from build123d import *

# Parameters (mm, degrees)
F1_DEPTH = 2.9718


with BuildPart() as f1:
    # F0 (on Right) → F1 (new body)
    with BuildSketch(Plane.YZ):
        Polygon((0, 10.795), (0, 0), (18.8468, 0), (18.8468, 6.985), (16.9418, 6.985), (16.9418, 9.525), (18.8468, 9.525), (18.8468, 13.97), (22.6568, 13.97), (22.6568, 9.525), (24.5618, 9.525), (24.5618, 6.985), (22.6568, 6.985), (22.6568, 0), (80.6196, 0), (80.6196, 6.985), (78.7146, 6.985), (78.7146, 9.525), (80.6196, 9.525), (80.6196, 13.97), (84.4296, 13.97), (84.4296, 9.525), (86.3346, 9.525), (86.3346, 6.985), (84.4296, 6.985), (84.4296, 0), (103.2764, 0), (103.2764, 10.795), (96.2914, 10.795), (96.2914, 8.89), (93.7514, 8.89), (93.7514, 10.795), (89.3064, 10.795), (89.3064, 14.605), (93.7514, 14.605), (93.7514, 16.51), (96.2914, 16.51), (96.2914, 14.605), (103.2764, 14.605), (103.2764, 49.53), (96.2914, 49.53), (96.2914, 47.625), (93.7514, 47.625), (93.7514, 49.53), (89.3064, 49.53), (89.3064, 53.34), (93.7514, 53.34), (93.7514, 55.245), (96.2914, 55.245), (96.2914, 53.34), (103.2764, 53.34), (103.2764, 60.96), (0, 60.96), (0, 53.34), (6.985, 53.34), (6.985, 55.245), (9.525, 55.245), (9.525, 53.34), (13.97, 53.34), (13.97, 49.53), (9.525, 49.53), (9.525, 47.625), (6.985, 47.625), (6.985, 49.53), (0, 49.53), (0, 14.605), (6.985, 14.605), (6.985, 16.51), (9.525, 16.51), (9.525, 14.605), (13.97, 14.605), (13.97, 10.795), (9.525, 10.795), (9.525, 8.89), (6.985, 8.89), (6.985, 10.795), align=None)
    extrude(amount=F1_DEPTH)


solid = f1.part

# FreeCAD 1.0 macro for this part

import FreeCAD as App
import Part
import Sketcher
Q = App.Units.Quantity

doc = App.newDocument("Part")
body = doc.addObject("PartDesign::Body", "Body")

# Sketch on YZ plane
sketch1 = body.newObject("Sketcher::SketchObject", "Sketch")
sketch1.AttachmentSupport = (doc.getObject("YZ_Plane"), [""])
sketch1.MapMode = "FlatFace"
sketch1.addGeometry(Part.LineSegment(App.Vector(0, 10.795, 0), App.Vector(0, 0, 0)), False)
sketch1.addGeometry(Part.LineSegment(App.Vector(0, 0, 0), App.Vector(18.8468, 0, 0)), False)
sketch1.addGeometry(Part.LineSegment(App.Vector(18.8468, 0, 0), App.Vector(18.8468, 6.985, 0)), False)
sketch1.addGeometry(Part.LineSegment(App.Vector(18.8468, 6.985, 0), App.Vector(16.9418, 6.985, 0)), False)
sketch1.addGeometry(Part.LineSegment(App.Vector(16.9418, 6.985, 0), App.Vector(16.9418, 9.525, 0)), False)
sketch1.addGeometry(Part.LineSegment(App.Vector(16.9418, 9.525, 0), App.Vector(18.8468, 9.525, 0)), False)
sketch1.addGeometry(Part.LineSegment(App.Vector(18.8468, 9.525, 0), App.Vector(18.8468, 13.97, 0)), False)
sketch1.addGeometry(Part.LineSegment(App.Vector(18.8468, 13.97, 0), App.Vector(22.6568, 13.97, 0)), False)
sketch1.addGeometry(Part.LineSegment(App.Vector(22.6568, 13.97, 0), App.Vector(22.6568, 9.525, 0)), False)
sketch1.addGeometry(Part.LineSegment(App.Vector(22.6568, 9.525, 0), App.Vector(24.5618, 9.525, 0)), False)
sketch1.addGeometry(Part.LineSegment(App.Vector(24.5618, 9.525, 0), App.Vector(24.5618, 6.985, 0)), False)
sketch1.addGeometry(Part.LineSegment(App.Vector(24.5618, 6.985, 0), App.Vector(22.6568, 6.985, 0)), False)
sketch1.addGeometry(Part.LineSegment(App.Vector(22.6568, 6.985, 0), App.Vector(22.6568, 0, 0)), False)
sketch1.addGeometry(Part.LineSegment(App.Vector(22.6568, 0, 0), App.Vector(80.6196, 0, 0)), False)
sketch1.addGeometry(Part.LineSegment(App.Vector(80.6196, 0, 0), App.Vector(80.6196, 6.985, 0)), False)
sketch1.addGeometry(Part.LineSegment(App.Vector(80.6196, 6.985, 0), App.Vector(78.7146, 6.985, 0)), False)
sketch1.addGeometry(Part.LineSegment(App.Vector(78.7146, 6.985, 0), App.Vector(78.7146, 9.525, 0)), False)
sketch1.addGeometry(Part.LineSegment(App.Vector(78.7146, 9.525, 0), App.Vector(80.6196, 9.525, 0)), False)
sketch1.addGeometry(Part.LineSegment(App.Vector(80.6196, 9.525, 0), App.Vector(80.6196, 13.97, 0)), False)
sketch1.addGeometry(Part.LineSegment(App.Vector(80.6196, 13.97, 0), App.Vector(84.4296, 13.97, 0)), False)
sketch1.addGeometry(Part.LineSegment(App.Vector(84.4296, 13.97, 0), App.Vector(84.4296, 9.525, 0)), False)
sketch1.addGeometry(Part.LineSegment(App.Vector(84.4296, 9.525, 0), App.Vector(86.3346, 9.525, 0)), False)
sketch1.addGeometry(Part.LineSegment(App.Vector(86.3346, 9.525, 0), App.Vector(86.3346, 6.985, 0)), False)
sketch1.addGeometry(Part.LineSegment(App.Vector(86.3346, 6.985, 0), App.Vector(84.4296, 6.985, 0)), False)
sketch1.addGeometry(Part.LineSegment(App.Vector(84.4296, 6.985, 0), App.Vector(84.4296, 0, 0)), False)
sketch1.addGeometry(Part.LineSegment(App.Vector(84.4296, 0, 0), App.Vector(103.2764, 0, 0)), False)
sketch1.addGeometry(Part.LineSegment(App.Vector(103.2764, 0, 0), App.Vector(103.2764, 10.795, 0)), False)
sketch1.addGeometry(Part.LineSegment(App.Vector(103.2764, 10.795, 0), App.Vector(96.2914, 10.795, 0)), False)
sketch1.addGeometry(Part.LineSegment(App.Vector(96.2914, 10.795, 0), App.Vector(96.2914, 8.89, 0)), False)
sketch1.addGeometry(Part.LineSegment(App.Vector(96.2914, 8.89, 0), App.Vector(93.7514, 8.89, 0)), False)
sketch1.addGeometry(Part.LineSegment(App.Vector(93.7514, 8.89, 0), App.Vector(93.7514, 10.795, 0)), False)
sketch1.addGeometry(Part.LineSegment(App.Vector(93.7514, 10.795, 0), App.Vector(89.3064, 10.795, 0)), False)
sketch1.addGeometry(Part.LineSegment(App.Vector(89.3064, 10.795, 0), App.Vector(89.3064, 14.605, 0)), False)
sketch1.addGeometry(Part.LineSegment(App.Vector(89.3064, 14.605, 0), App.Vector(93.7514, 14.605, 0)), False)
sketch1.addGeometry(Part.LineSegment(App.Vector(93.7514, 14.605, 0), App.Vector(93.7514, 16.51, 0)), False)
sketch1.addGeometry(Part.LineSegment(App.Vector(93.7514, 16.51, 0), App.Vector(96.2914, 16.51, 0)), False)
sketch1.addGeometry(Part.LineSegment(App.Vector(96.2914, 16.51, 0), App.Vector(96.2914, 14.605, 0)), False)
sketch1.addGeometry(Part.LineSegment(App.Vector(96.2914, 14.605, 0), App.Vector(103.2764, 14.605, 0)), False)
sketch1.addGeometry(Part.LineSegment(App.Vector(103.2764, 14.605, 0), App.Vector(103.2764, 49.53, 0)), False)
sketch1.addGeometry(Part.LineSegment(App.Vector(103.2764, 49.53, 0), App.Vector(96.2914, 49.53, 0)), False)
sketch1.addGeometry(Part.LineSegment(App.Vector(96.2914, 49.53, 0), App.Vector(96.2914, 47.625, 0)), False)
sketch1.addGeometry(Part.LineSegment(App.Vector(96.2914, 47.625, 0), App.Vector(93.7514, 47.625, 0)), False)
sketch1.addGeometry(Part.LineSegment(App.Vector(93.7514, 47.625, 0), App.Vector(93.7514, 49.53, 0)), False)
sketch1.addGeometry(Part.LineSegment(App.Vector(93.7514, 49.53, 0), App.Vector(89.3064, 49.53, 0)), False)
sketch1.addGeometry(Part.LineSegment(App.Vector(89.3064, 49.53, 0), App.Vector(89.3064, 53.34, 0)), False)
sketch1.addGeometry(Part.LineSegment(App.Vector(89.3064, 53.34, 0), App.Vector(93.7514, 53.34, 0)), False)
sketch1.addGeometry(Part.LineSegment(App.Vector(93.7514, 53.34, 0), App.Vector(93.7514, 55.245, 0)), False)
sketch1.addGeometry(Part.LineSegment(App.Vector(93.7514, 55.245, 0), App.Vector(96.2914, 55.245, 0)), False)
sketch1.addGeometry(Part.LineSegment(App.Vector(96.2914, 55.245, 0), App.Vector(96.2914, 53.34, 0)), False)
sketch1.addGeometry(Part.LineSegment(App.Vector(96.2914, 53.34, 0), App.Vector(103.2764, 53.34, 0)), False)
sketch1.addGeometry(Part.LineSegment(App.Vector(103.2764, 53.34, 0), App.Vector(103.2764, 60.96, 0)), False)
sketch1.addGeometry(Part.LineSegment(App.Vector(103.2764, 60.96, 0), App.Vector(0, 60.96, 0)), False)
sketch1.addGeometry(Part.LineSegment(App.Vector(0, 60.96, 0), App.Vector(0, 53.34, 0)), False)
sketch1.addGeometry(Part.LineSegment(App.Vector(0, 53.34, 0), App.Vector(6.985, 53.34, 0)), False)
sketch1.addGeometry(Part.LineSegment(App.Vector(6.985, 53.34, 0), App.Vector(6.985, 55.245, 0)), False)
sketch1.addGeometry(Part.LineSegment(App.Vector(6.985, 55.245, 0), App.Vector(9.525, 55.245, 0)), False)
sketch1.addGeometry(Part.LineSegment(App.Vector(9.525, 55.245, 0), App.Vector(9.525, 53.34, 0)), False)
sketch1.addGeometry(Part.LineSegment(App.Vector(9.525, 53.34, 0), App.Vector(13.97, 53.34, 0)), False)
sketch1.addGeometry(Part.LineSegment(App.Vector(13.97, 53.34, 0), App.Vector(13.97, 49.53, 0)), False)
sketch1.addGeometry(Part.LineSegment(App.Vector(13.97, 49.53, 0), App.Vector(9.525, 49.53, 0)), False)
sketch1.addGeometry(Part.LineSegment(App.Vector(9.525, 49.53, 0), App.Vector(9.525, 47.625, 0)), False)
sketch1.addGeometry(Part.LineSegment(App.Vector(9.525, 47.625, 0), App.Vector(6.985, 47.625, 0)), False)
sketch1.addGeometry(Part.LineSegment(App.Vector(6.985, 47.625, 0), App.Vector(6.985, 49.53, 0)), False)
sketch1.addGeometry(Part.LineSegment(App.Vector(6.985, 49.53, 0), App.Vector(0, 49.53, 0)), False)
sketch1.addGeometry(Part.LineSegment(App.Vector(0, 49.53, 0), App.Vector(0, 14.605, 0)), False)
sketch1.addGeometry(Part.LineSegment(App.Vector(0, 14.605, 0), App.Vector(6.985, 14.605, 0)), False)
sketch1.addGeometry(Part.LineSegment(App.Vector(6.985, 14.605, 0), App.Vector(6.985, 16.51, 0)), False)
sketch1.addGeometry(Part.LineSegment(App.Vector(6.985, 16.51, 0), App.Vector(9.525, 16.51, 0)), False)
sketch1.addGeometry(Part.LineSegment(App.Vector(9.525, 16.51, 0), App.Vector(9.525, 14.605, 0)), False)
sketch1.addGeometry(Part.LineSegment(App.Vector(9.525, 14.605, 0), App.Vector(13.97, 14.605, 0)), False)
sketch1.addGeometry(Part.LineSegment(App.Vector(13.97, 14.605, 0), App.Vector(13.97, 10.795, 0)), False)
sketch1.addGeometry(Part.LineSegment(App.Vector(13.97, 10.795, 0), App.Vector(9.525, 10.795, 0)), False)
sketch1.addGeometry(Part.LineSegment(App.Vector(9.525, 10.795, 0), App.Vector(9.525, 8.89, 0)), False)
sketch1.addGeometry(Part.LineSegment(App.Vector(9.525, 8.89, 0), App.Vector(6.985, 8.89, 0)), False)
sketch1.addGeometry(Part.LineSegment(App.Vector(6.985, 8.89, 0), App.Vector(6.985, 10.795, 0)), False)
sketch1.addGeometry(Part.LineSegment(App.Vector(6.985, 10.795, 0), App.Vector(0, 10.795, 0)), False)
sketch1.addConstraint(Sketcher.Constraint("Coincident", 0, 2, 1, 1))
sketch1.addConstraint(Sketcher.Constraint("Coincident", 1, 2, 2, 1))
sketch1.addConstraint(Sketcher.Constraint("Coincident", 2, 2, 3, 1))
sketch1.addConstraint(Sketcher.Constraint("Coincident", 3, 2, 4, 1))
sketch1.addConstraint(Sketcher.Constraint("Coincident", 4, 2, 5, 1))
sketch1.addConstraint(Sketcher.Constraint("Coincident", 5, 2, 6, 1))
sketch1.addConstraint(Sketcher.Constraint("Coincident", 6, 2, 7, 1))
sketch1.addConstraint(Sketcher.Constraint("Coincident", 7, 2, 8, 1))
sketch1.addConstraint(Sketcher.Constraint("Coincident", 8, 2, 9, 1))
sketch1.addConstraint(Sketcher.Constraint("Coincident", 9, 2, 10, 1))
sketch1.addConstraint(Sketcher.Constraint("Coincident", 10, 2, 11, 1))
sketch1.addConstraint(Sketcher.Constraint("Coincident", 11, 2, 12, 1))
sketch1.addConstraint(Sketcher.Constraint("Coincident", 12, 2, 13, 1))
sketch1.addConstraint(Sketcher.Constraint("Coincident", 13, 2, 14, 1))
sketch1.addConstraint(Sketcher.Constraint("Coincident", 14, 2, 15, 1))
sketch1.addConstraint(Sketcher.Constraint("Coincident", 15, 2, 16, 1))
sketch1.addConstraint(Sketcher.Constraint("Coincident", 16, 2, 17, 1))
sketch1.addConstraint(Sketcher.Constraint("Coincident", 17, 2, 18, 1))
sketch1.addConstraint(Sketcher.Constraint("Coincident", 18, 2, 19, 1))
sketch1.addConstraint(Sketcher.Constraint("Coincident", 19, 2, 20, 1))
sketch1.addConstraint(Sketcher.Constraint("Coincident", 20, 2, 21, 1))
sketch1.addConstraint(Sketcher.Constraint("Coincident", 21, 2, 22, 1))
sketch1.addConstraint(Sketcher.Constraint("Coincident", 22, 2, 23, 1))
sketch1.addConstraint(Sketcher.Constraint("Coincident", 23, 2, 24, 1))
sketch1.addConstraint(Sketcher.Constraint("Coincident", 24, 2, 25, 1))
sketch1.addConstraint(Sketcher.Constraint("Coincident", 25, 2, 26, 1))
sketch1.addConstraint(Sketcher.Constraint("Coincident", 26, 2, 27, 1))
sketch1.addConstraint(Sketcher.Constraint("Coincident", 27, 2, 28, 1))
sketch1.addConstraint(Sketcher.Constraint("Coincident", 28, 2, 29, 1))
sketch1.addConstraint(Sketcher.Constraint("Coincident", 29, 2, 30, 1))
sketch1.addConstraint(Sketcher.Constraint("Coincident", 30, 2, 31, 1))
sketch1.addConstraint(Sketcher.Constraint("Coincident", 31, 2, 32, 1))
sketch1.addConstraint(Sketcher.Constraint("Coincident", 32, 2, 33, 1))
sketch1.addConstraint(Sketcher.Constraint("Coincident", 33, 2, 34, 1))
sketch1.addConstraint(Sketcher.Constraint("Coincident", 34, 2, 35, 1))
sketch1.addConstraint(Sketcher.Constraint("Coincident", 35, 2, 36, 1))
sketch1.addConstraint(Sketcher.Constraint("Coincident", 36, 2, 37, 1))
sketch1.addConstraint(Sketcher.Constraint("Coincident", 37, 2, 38, 1))
sketch1.addConstraint(Sketcher.Constraint("Coincident", 38, 2, 39, 1))
sketch1.addConstraint(Sketcher.Constraint("Coincident", 39, 2, 40, 1))
sketch1.addConstraint(Sketcher.Constraint("Coincident", 40, 2, 41, 1))
sketch1.addConstraint(Sketcher.Constraint("Coincident", 41, 2, 42, 1))
sketch1.addConstraint(Sketcher.Constraint("Coincident", 42, 2, 43, 1))
sketch1.addConstraint(Sketcher.Constraint("Coincident", 43, 2, 44, 1))
sketch1.addConstraint(Sketcher.Constraint("Coincident", 44, 2, 45, 1))
sketch1.addConstraint(Sketcher.Constraint("Coincident", 45, 2, 46, 1))
sketch1.addConstraint(Sketcher.Constraint("Coincident", 46, 2, 47, 1))
sketch1.addConstraint(Sketcher.Constraint("Coincident", 47, 2, 48, 1))
sketch1.addConstraint(Sketcher.Constraint("Coincident", 48, 2, 49, 1))
sketch1.addConstraint(Sketcher.Constraint("Coincident", 49, 2, 50, 1))
sketch1.addConstraint(Sketcher.Constraint("Coincident", 50, 2, 51, 1))
sketch1.addConstraint(Sketcher.Constraint("Coincident", 51, 2, 52, 1))
sketch1.addConstraint(Sketcher.Constraint("Coincident", 52, 2, 53, 1))
sketch1.addConstraint(Sketcher.Constraint("Coincident", 53, 2, 54, 1))
sketch1.addConstraint(Sketcher.Constraint("Coincident", 54, 2, 55, 1))
sketch1.addConstraint(Sketcher.Constraint("Coincident", 55, 2, 56, 1))
sketch1.addConstraint(Sketcher.Constraint("Coincident", 56, 2, 57, 1))
sketch1.addConstraint(Sketcher.Constraint("Coincident", 57, 2, 58, 1))
sketch1.addConstraint(Sketcher.Constraint("Coincident", 58, 2, 59, 1))
sketch1.addConstraint(Sketcher.Constraint("Coincident", 59, 2, 60, 1))
sketch1.addConstraint(Sketcher.Constraint("Coincident", 60, 2, 61, 1))
sketch1.addConstraint(Sketcher.Constraint("Coincident", 61, 2, 62, 1))
sketch1.addConstraint(Sketcher.Constraint("Coincident", 62, 2, 63, 1))
sketch1.addConstraint(Sketcher.Constraint("Coincident", 63, 2, 64, 1))
sketch1.addConstraint(Sketcher.Constraint("Coincident", 64, 2, 65, 1))
sketch1.addConstraint(Sketcher.Constraint("Coincident", 65, 2, 66, 1))
sketch1.addConstraint(Sketcher.Constraint("Coincident", 66, 2, 67, 1))
sketch1.addConstraint(Sketcher.Constraint("Coincident", 67, 2, 68, 1))
sketch1.addConstraint(Sketcher.Constraint("Coincident", 68, 2, 69, 1))
sketch1.addConstraint(Sketcher.Constraint("Coincident", 69, 2, 70, 1))
sketch1.addConstraint(Sketcher.Constraint("Coincident", 70, 2, 71, 1))
sketch1.addConstraint(Sketcher.Constraint("Coincident", 71, 2, 72, 1))
sketch1.addConstraint(Sketcher.Constraint("Coincident", 72, 2, 73, 1))
sketch1.addConstraint(Sketcher.Constraint("Coincident", 73, 2, 74, 1))
sketch1.addConstraint(Sketcher.Constraint("Coincident", 74, 2, 75, 1))
sketch1.addConstraint(Sketcher.Constraint("Coincident", 75, 2, 0, 1))
sketch1.addConstraint(Sketcher.Constraint("Vertical", 0))
sketch1.addConstraint(Sketcher.Constraint("Horizontal", 1))
sketch1.addConstraint(Sketcher.Constraint("Vertical", 2))
sketch1.addConstraint(Sketcher.Constraint("Horizontal", 3))
sketch1.addConstraint(Sketcher.Constraint("Vertical", 4))
sketch1.addConstraint(Sketcher.Constraint("Horizontal", 5))
sketch1.addConstraint(Sketcher.Constraint("Vertical", 6))
sketch1.addConstraint(Sketcher.Constraint("Horizontal", 7))
sketch1.addConstraint(Sketcher.Constraint("Vertical", 8))
sketch1.addConstraint(Sketcher.Constraint("Horizontal", 9))
sketch1.addConstraint(Sketcher.Constraint("Vertical", 10))
sketch1.addConstraint(Sketcher.Constraint("Horizontal", 11))
sketch1.addConstraint(Sketcher.Constraint("Vertical", 12))
sketch1.addConstraint(Sketcher.Constraint("Horizontal", 13))
sketch1.addConstraint(Sketcher.Constraint("Vertical", 14))
sketch1.addConstraint(Sketcher.Constraint("Horizontal", 15))
sketch1.addConstraint(Sketcher.Constraint("Vertical", 16))
sketch1.addConstraint(Sketcher.Constraint("Horizontal", 17))
sketch1.addConstraint(Sketcher.Constraint("Vertical", 18))
sketch1.addConstraint(Sketcher.Constraint("Horizontal", 19))
sketch1.addConstraint(Sketcher.Constraint("Vertical", 20))
sketch1.addConstraint(Sketcher.Constraint("Horizontal", 21))
sketch1.addConstraint(Sketcher.Constraint("Vertical", 22))
sketch1.addConstraint(Sketcher.Constraint("Horizontal", 23))
sketch1.addConstraint(Sketcher.Constraint("Vertical", 24))
sketch1.addConstraint(Sketcher.Constraint("Horizontal", 25))
sketch1.addConstraint(Sketcher.Constraint("Vertical", 26))
sketch1.addConstraint(Sketcher.Constraint("Horizontal", 27))
sketch1.addConstraint(Sketcher.Constraint("Vertical", 28))
sketch1.addConstraint(Sketcher.Constraint("Horizontal", 29))
sketch1.addConstraint(Sketcher.Constraint("Vertical", 30))
sketch1.addConstraint(Sketcher.Constraint("Horizontal", 31))
sketch1.addConstraint(Sketcher.Constraint("Vertical", 32))
sketch1.addConstraint(Sketcher.Constraint("Horizontal", 33))
sketch1.addConstraint(Sketcher.Constraint("Vertical", 34))
sketch1.addConstraint(Sketcher.Constraint("Horizontal", 35))
sketch1.addConstraint(Sketcher.Constraint("Vertical", 36))
sketch1.addConstraint(Sketcher.Constraint("Horizontal", 37))
sketch1.addConstraint(Sketcher.Constraint("Vertical", 38))
sketch1.addConstraint(Sketcher.Constraint("Horizontal", 39))
sketch1.addConstraint(Sketcher.Constraint("Vertical", 40))
sketch1.addConstraint(Sketcher.Constraint("Horizontal", 41))
sketch1.addConstraint(Sketcher.Constraint("Vertical", 42))
sketch1.addConstraint(Sketcher.Constraint("Horizontal", 43))
sketch1.addConstraint(Sketcher.Constraint("Vertical", 44))
sketch1.addConstraint(Sketcher.Constraint("Horizontal", 45))
sketch1.addConstraint(Sketcher.Constraint("Vertical", 46))
sketch1.addConstraint(Sketcher.Constraint("Horizontal", 47))
sketch1.addConstraint(Sketcher.Constraint("Vertical", 48))
sketch1.addConstraint(Sketcher.Constraint("Horizontal", 49))
sketch1.addConstraint(Sketcher.Constraint("Vertical", 50))
sketch1.addConstraint(Sketcher.Constraint("Horizontal", 51))
sketch1.addConstraint(Sketcher.Constraint("Vertical", 52))
sketch1.addConstraint(Sketcher.Constraint("Horizontal", 53))
sketch1.addConstraint(Sketcher.Constraint("Vertical", 54))
sketch1.addConstraint(Sketcher.Constraint("Horizontal", 55))
sketch1.addConstraint(Sketcher.Constraint("Vertical", 56))
sketch1.addConstraint(Sketcher.Constraint("Horizontal", 57))
sketch1.addConstraint(Sketcher.Constraint("Vertical", 58))
sketch1.addConstraint(Sketcher.Constraint("Horizontal", 59))
sketch1.addConstraint(Sketcher.Constraint("Vertical", 60))
sketch1.addConstraint(Sketcher.Constraint("Horizontal", 61))
sketch1.addConstraint(Sketcher.Constraint("Vertical", 62))
sketch1.addConstraint(Sketcher.Constraint("Horizontal", 63))
sketch1.addConstraint(Sketcher.Constraint("Vertical", 64))
sketch1.addConstraint(Sketcher.Constraint("Horizontal", 65))
sketch1.addConstraint(Sketcher.Constraint("Vertical", 66))
sketch1.addConstraint(Sketcher.Constraint("Horizontal", 67))
sketch1.addConstraint(Sketcher.Constraint("Vertical", 68))
sketch1.addConstraint(Sketcher.Constraint("Horizontal", 69))
sketch1.addConstraint(Sketcher.Constraint("Vertical", 70))
sketch1.addConstraint(Sketcher.Constraint("Horizontal", 71))
sketch1.addConstraint(Sketcher.Constraint("Vertical", 72))
sketch1.addConstraint(Sketcher.Constraint("Horizontal", 73))
sketch1.addConstraint(Sketcher.Constraint("Vertical", 74))
sketch1.addConstraint(Sketcher.Constraint("Horizontal", 75))
sketch1.addConstraint(Sketcher.Constraint("Coincident", 0, 2, -1, 1))
sketch1.addConstraint(Sketcher.Constraint("PointOnObject", 12, 2, -1))
sketch1.addConstraint(Sketcher.Constraint("PointOnObject", 24, 2, -1))
sketch1.addConstraint(Sketcher.Constraint("PointOnObject", 51, 2, -2))
sketch1.addConstraint(Sketcher.Constraint("PointOnObject", 63, 2, -2))
sketch1.addConstraint(Sketcher.Constraint("Horizontal", 5, 2, 8, 2))
sketch1.addConstraint(Sketcher.Constraint("Horizontal", 3, 2, 10, 2))
sketch1.addConstraint(Sketcher.Constraint("Horizontal", 11, 2, 14, 2))
sketch1.addConstraint(Sketcher.Constraint("Horizontal", 9, 2, 16, 2))
sketch1.addConstraint(Sketcher.Constraint("Horizontal", 7, 2, 18, 2))
sketch1.addConstraint(Sketcher.Constraint("Horizontal", 17, 2, 20, 2))
sketch1.addConstraint(Sketcher.Constraint("Horizontal", 15, 2, 22, 2))
sketch1.addConstraint(Sketcher.Constraint("Horizontal", 27, 2, 30, 2))
sketch1.addConstraint(Sketcher.Constraint("Horizontal", 33, 2, 36, 2))
sketch1.addConstraint(Sketcher.Constraint("Horizontal", 39, 2, 42, 2))
sketch1.addConstraint(Sketcher.Constraint("Horizontal", 45, 2, 48, 2))
sketch1.addConstraint(Sketcher.Constraint("Horizontal", 49, 2, 52, 2))
sketch1.addConstraint(Sketcher.Constraint("Horizontal", 47, 2, 54, 2))
sketch1.addConstraint(Sketcher.Constraint("Horizontal", 53, 2, 56, 2))
sketch1.addConstraint(Sketcher.Constraint("Horizontal", 43, 2, 58, 2))
sketch1.addConstraint(Sketcher.Constraint("Horizontal", 41, 2, 60, 2))
sketch1.addConstraint(Sketcher.Constraint("Horizontal", 59, 2, 62, 2))
sketch1.addConstraint(Sketcher.Constraint("Horizontal", 37, 2, 64, 2))
sketch1.addConstraint(Sketcher.Constraint("Horizontal", 35, 2, 66, 2))
sketch1.addConstraint(Sketcher.Constraint("Horizontal", 65, 2, 68, 2))
sketch1.addConstraint(Sketcher.Constraint("Horizontal", 31, 2, 70, 2))
sketch1.addConstraint(Sketcher.Constraint("Horizontal", 29, 2, 72, 2))
sketch1.addConstraint(Sketcher.Constraint("Horizontal", 71, 2, 74, 2))
sketch1.addConstraint(Sketcher.Constraint("Vertical", 2, 2, 5, 2))
sketch1.addConstraint(Sketcher.Constraint("Vertical", 8, 2, 11, 2))
sketch1.addConstraint(Sketcher.Constraint("Vertical", 14, 2, 17, 2))
sketch1.addConstraint(Sketcher.Constraint("Vertical", 20, 2, 23, 2))
sketch1.addConstraint(Sketcher.Constraint("Vertical", 30, 2, 33, 2))
sketch1.addConstraint(Sketcher.Constraint("Vertical", 28, 2, 35, 2))
sketch1.addConstraint(Sketcher.Constraint("Vertical", 26, 2, 37, 2))
sketch1.addConstraint(Sketcher.Constraint("Vertical", 36, 2, 39, 2))
sketch1.addConstraint(Sketcher.Constraint("Vertical", 34, 2, 41, 2))
sketch1.addConstraint(Sketcher.Constraint("Vertical", 32, 2, 43, 2))
sketch1.addConstraint(Sketcher.Constraint("Vertical", 42, 2, 45, 2))
sketch1.addConstraint(Sketcher.Constraint("Vertical", 40, 2, 47, 2))
sketch1.addConstraint(Sketcher.Constraint("Vertical", 38, 2, 49, 2))
sketch1.addConstraint(Sketcher.Constraint("Vertical", 56, 2, 59, 2))
sketch1.addConstraint(Sketcher.Constraint("Vertical", 54, 2, 61, 2))
sketch1.addConstraint(Sketcher.Constraint("Vertical", 62, 2, 65, 2))
sketch1.addConstraint(Sketcher.Constraint("Vertical", 60, 2, 67, 2))
sketch1.addConstraint(Sketcher.Constraint("Vertical", 58, 2, 69, 2))
sketch1.addConstraint(Sketcher.Constraint("Vertical", 68, 2, 71, 2))
sketch1.addConstraint(Sketcher.Constraint("Vertical", 66, 2, 73, 2))
sketch1.addConstraint(Sketcher.Constraint("Equal", 5, 9))
sketch1.addConstraint(Sketcher.Constraint("Equal", 11, 15))
sketch1.addConstraint(Sketcher.Constraint("Equal", 7, 19))
sketch1.addConstraint(Sketcher.Constraint("Equal", 17, 21))
sketch1.addConstraint(Sketcher.Constraint("Equal", 1, 25))
sketch1.addConstraint(Sketcher.Constraint("Equal", 49, 53))
sketch1.addConstraint(Sketcher.Constraint("Equal", 47, 55))
sketch1.addConstraint(Sketcher.Constraint("Equal", 45, 57))
sketch1.addConstraint(Sketcher.Constraint("Equal", 75, 2))
sketch1.addConstraint(Sketcher.Constraint("Equal", 73, 4))
sketch1.addConstraint(Sketcher.Constraint("Equal", 71, 6))
sketch1.addConstraint(Sketcher.Constraint("Equal", 23, 28))
sketch1.addConstraint(Sketcher.Constraint("Equal", 19, 32))
sketch1.addConstraint(Sketcher.Constraint("Equal", 30, 34))
sketch1.addConstraint(Sketcher.Constraint("Equal", 36, 40))
sketch1.addConstraint(Sketcher.Constraint("Equal", 32, 44))
sketch1.addConstraint(Sketcher.Constraint("Equal", 42, 46))
sketch1.addConstraint(Sketcher.Constraint("DistanceX", 29, 2, 29, 1, Q("0.1 in")))
sketch1.addConstraint(Sketcher.Constraint("DistanceY", 50, 1, 50, 2, Q("0.3 in")))
sketch1.addConstraint(Sketcher.Constraint("DistanceX", 7, 1, 7, 2, Q("0.15 in")))
sketch1.addConstraint(Sketcher.Constraint("DistanceY", -1, 1, 44, 2, Q("2.1 in")))
sketch1.addConstraint(Sketcher.Constraint("DistanceX", 1, 1, 1, 2, Q("0.742 in")))
sketch1.addConstraint(Sketcher.Constraint("DistanceX", 3, 2, 3, 1, Q("0.075 in")))
sketch1.addConstraint(Sketcher.Constraint("DistanceX", 13, 1, 13, 2, Q("2.282 in")))
sketch1.addConstraint(Sketcher.Constraint("DistanceX", 27, 2, 27, 1, Q("0.275 in")))
sketch1.addConstraint(Sketcher.Constraint("DistanceX", 31, 2, 31, 1, Q("0.175 in")))
sketch1.addConstraint(Sketcher.Constraint("DistanceY", 0, 2, 0, 1, Q("0.425 in")))
pad1 = body.newObject("PartDesign::Pad", "Pad")
pad1.Profile = sketch1
pad1.Length = Q("0.117 in")

doc.recompute()
